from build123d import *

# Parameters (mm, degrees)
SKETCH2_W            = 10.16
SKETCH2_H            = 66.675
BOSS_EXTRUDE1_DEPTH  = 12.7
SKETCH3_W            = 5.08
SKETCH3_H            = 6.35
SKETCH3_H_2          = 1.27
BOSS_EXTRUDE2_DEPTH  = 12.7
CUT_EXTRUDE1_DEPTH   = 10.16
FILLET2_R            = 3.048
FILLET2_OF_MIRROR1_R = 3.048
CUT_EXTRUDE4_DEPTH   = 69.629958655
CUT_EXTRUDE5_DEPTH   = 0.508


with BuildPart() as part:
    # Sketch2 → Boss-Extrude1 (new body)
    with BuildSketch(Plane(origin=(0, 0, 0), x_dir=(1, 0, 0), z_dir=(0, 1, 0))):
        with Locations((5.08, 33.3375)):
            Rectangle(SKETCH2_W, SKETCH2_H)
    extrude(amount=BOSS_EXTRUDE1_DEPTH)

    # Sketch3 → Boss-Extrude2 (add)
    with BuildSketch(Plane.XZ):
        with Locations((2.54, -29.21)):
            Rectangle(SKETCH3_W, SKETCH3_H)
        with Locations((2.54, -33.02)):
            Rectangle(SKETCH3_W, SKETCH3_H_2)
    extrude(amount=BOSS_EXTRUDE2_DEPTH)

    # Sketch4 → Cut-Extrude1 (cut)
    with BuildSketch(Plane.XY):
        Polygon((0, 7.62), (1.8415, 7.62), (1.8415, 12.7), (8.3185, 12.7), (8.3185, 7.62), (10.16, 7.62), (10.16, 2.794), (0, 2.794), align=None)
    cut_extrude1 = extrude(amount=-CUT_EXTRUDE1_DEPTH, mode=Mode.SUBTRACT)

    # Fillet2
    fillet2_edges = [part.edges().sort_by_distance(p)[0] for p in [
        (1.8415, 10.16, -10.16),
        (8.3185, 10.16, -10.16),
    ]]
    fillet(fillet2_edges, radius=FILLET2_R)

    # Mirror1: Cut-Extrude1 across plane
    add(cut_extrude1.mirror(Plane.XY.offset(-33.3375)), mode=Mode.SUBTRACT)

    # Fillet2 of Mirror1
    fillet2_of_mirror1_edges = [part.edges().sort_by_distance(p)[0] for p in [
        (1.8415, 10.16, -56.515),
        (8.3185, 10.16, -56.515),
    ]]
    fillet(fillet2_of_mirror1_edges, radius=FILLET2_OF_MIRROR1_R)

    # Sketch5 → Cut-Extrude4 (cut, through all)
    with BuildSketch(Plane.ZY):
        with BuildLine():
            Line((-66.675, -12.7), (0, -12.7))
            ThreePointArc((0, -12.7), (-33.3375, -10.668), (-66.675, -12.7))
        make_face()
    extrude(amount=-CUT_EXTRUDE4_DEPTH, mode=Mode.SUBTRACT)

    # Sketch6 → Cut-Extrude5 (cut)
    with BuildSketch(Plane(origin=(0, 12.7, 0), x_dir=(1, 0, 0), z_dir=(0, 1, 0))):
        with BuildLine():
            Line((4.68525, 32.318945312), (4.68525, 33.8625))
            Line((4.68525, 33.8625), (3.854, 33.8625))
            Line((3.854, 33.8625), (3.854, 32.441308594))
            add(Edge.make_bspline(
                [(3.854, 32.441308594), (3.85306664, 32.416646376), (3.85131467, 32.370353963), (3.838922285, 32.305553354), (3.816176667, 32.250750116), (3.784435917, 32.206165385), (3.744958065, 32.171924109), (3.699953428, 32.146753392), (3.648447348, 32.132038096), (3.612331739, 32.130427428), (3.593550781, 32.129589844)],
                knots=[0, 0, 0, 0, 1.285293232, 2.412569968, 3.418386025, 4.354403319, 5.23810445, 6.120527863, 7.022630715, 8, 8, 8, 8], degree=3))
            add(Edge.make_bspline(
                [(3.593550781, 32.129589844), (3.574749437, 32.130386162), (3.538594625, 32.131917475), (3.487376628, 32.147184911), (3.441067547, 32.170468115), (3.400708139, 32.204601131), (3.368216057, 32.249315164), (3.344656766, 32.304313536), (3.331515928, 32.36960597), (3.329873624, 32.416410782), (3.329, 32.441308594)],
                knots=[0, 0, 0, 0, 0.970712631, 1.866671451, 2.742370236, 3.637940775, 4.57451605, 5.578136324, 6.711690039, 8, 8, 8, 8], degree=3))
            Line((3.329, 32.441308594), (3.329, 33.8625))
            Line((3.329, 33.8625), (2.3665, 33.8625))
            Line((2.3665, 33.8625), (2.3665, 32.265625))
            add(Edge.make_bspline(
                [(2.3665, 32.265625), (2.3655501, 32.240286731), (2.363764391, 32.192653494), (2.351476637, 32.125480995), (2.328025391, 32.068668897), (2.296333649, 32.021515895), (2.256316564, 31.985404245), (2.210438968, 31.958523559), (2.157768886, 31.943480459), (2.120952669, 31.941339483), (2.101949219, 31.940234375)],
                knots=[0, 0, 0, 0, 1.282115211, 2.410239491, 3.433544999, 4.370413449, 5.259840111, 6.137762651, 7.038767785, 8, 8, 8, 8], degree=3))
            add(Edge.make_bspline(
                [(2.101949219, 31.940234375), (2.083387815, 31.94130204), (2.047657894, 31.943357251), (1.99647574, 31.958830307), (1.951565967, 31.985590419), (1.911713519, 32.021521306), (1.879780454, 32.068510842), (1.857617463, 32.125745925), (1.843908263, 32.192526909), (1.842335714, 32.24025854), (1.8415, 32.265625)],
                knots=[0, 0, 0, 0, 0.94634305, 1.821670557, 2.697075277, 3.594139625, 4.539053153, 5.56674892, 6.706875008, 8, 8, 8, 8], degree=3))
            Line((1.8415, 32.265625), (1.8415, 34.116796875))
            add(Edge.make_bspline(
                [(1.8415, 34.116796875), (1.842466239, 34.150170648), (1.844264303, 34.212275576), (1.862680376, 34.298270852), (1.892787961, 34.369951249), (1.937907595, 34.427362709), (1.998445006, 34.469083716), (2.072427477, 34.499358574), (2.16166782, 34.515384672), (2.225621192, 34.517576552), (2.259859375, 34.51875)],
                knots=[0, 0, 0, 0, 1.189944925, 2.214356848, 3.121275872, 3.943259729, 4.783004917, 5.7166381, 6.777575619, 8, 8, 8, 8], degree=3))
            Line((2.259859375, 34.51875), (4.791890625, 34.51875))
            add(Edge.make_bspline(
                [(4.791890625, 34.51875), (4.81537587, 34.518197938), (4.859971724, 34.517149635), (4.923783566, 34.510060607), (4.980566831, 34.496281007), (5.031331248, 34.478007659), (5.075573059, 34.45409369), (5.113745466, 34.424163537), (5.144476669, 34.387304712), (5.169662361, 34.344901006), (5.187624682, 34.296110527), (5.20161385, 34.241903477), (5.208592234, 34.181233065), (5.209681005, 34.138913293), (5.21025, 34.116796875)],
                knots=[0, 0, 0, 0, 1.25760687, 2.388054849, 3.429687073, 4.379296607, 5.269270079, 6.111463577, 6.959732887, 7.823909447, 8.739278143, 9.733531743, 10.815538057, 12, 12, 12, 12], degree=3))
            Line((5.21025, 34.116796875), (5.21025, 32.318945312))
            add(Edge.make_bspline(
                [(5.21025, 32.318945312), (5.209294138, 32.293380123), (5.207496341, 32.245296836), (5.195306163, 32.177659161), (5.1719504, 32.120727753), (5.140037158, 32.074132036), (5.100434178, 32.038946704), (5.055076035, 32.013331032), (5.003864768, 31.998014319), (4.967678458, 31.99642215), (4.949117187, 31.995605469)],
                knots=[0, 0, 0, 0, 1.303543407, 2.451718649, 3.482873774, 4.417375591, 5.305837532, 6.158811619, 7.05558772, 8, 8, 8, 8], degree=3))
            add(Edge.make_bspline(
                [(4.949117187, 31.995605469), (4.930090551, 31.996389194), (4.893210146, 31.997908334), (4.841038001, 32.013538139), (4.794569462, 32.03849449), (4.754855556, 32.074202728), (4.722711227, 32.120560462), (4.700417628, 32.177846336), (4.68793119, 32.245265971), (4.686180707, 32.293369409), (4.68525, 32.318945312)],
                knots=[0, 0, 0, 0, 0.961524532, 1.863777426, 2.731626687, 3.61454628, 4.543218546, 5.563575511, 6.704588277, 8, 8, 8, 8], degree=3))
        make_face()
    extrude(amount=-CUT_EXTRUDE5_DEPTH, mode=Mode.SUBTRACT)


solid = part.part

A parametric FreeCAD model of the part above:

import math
import FreeCAD as App
import Part
import Sketcher
Q = App.Units.Quantity


def edges_at(feature, points):
    """Names of the edges that pass closest to the given points."""
    edges = feature.Shape.Edges
    near = lambda p: min(range(len(edges)), key=lambda i: edges[i].distToShape(Part.Vertex(*p))[0])
    return sorted({f"Edge{near(p) + 1}" for p in points})


def add_polygon(sketch, points):
    """Adds a closed chain of lines whose ends are joined by coincident constraints."""
    first, n = sketch.GeometryCount, len(points)
    for a, b in zip(points, points[1:] + points[:1]):
        sketch.addGeometry(Part.LineSegment(App.Vector(*a, 0), App.Vector(*b, 0)), False)
    for i in range(n):
        sketch.addConstraint(Sketcher.Constraint("Coincident", first + i, 2, first + (i + 1) % n, 1))

doc = App.newDocument("Part")
params = doc.addObject("Spreadsheet::Sheet", "Params")
for row, (alias, value) in enumerate([
    ("sketch1_width", "0.4 in"),
    ("sketch1_height", "2.625 in"),
    ("pad1_length", "0.5 in"),
    ("sketch2_width", "0.2 in"),
    ("sketch2_height", "0.3 in"),
    ("pad2_length", "0.5 in"),
    ("sketch3_width", "0.4 in"),
    ("sketch3_height", "0.2 in"),
    ("sketch3_height2", "0.19 in"),
    ("sketch3_width2", "0.255 in"),
    ("pocket1_length", "0.4 in"),
    ("fillet_radius", "0.12 in"),
    ("fillet2_radius", "0.12 in"),
    ("sketch4_height", "2.625 in"),
    ("pocket3_length", "0.02 in"),
], start=1):
    params.set(f"A{row}", alias)
    params.set(f"B{row}", "=" + value)
    params.setAlias(f"B{row}", alias)

body = doc.addObject("PartDesign::Body", "Body")

# Sketch on XZ plane
sketch1 = doc.addObject("Sketcher::SketchObject", "Sketch")
body.addObject(sketch1)
sketch1.AttachmentSupport = (doc.XZ_Plane, [""])
sketch1.MapMode = "FlatFace"
add_polygon(sketch1, [(0, -67), (0, 0), (10, 0), (10, -67)])  # lines 0-3
sketch1.addConstraint(Sketcher.Constraint("Vertical", 0))
sketch1.addConstraint(Sketcher.Constraint("Horizontal", 1))
sketch1.addConstraint(Sketcher.Constraint("Vertical", 2))
sketch1.addConstraint(Sketcher.Constraint("Horizontal", 3))
sketch1.addConstraint(Sketcher.Constraint("Coincident", 0, 2, -1, 1))
sketch1.addConstraint(Sketcher.Constraint("DistanceX", 1, 1, 1, 2, Q("0.4 in")))
sketch1.addConstraint(Sketcher.Constraint("DistanceY", 0, 1, 0, 2, Q("2.625 in")))
sketch1.setExpression("Constraints[9]", "Params.sketch1_width")
sketch1.setExpression("Constraints[10]", "Params.sketch1_height")
pad1 = doc.addObject("PartDesign::Pad", "Pad")
body.addObject(pad1)
pad1.Profile = sketch1
pad1.setExpression("Length", "Params.pad1_length")
pad1.Reversed = True

# Sketch on XZ plane
sketch2 = doc.addObject("Sketcher::SketchObject", "Sketch001")
body.addObject(sketch2)
sketch2.AttachmentSupport = (doc.XZ_Plane, [""])
sketch2.MapMode = "FlatFace"
add_polygon(sketch2, [(0, -26), (0, -34), (5, -34), (5, -26)])  # lines 0-3
sketch2.addConstraint(Sketcher.Constraint("Vertical", 0))
sketch2.addConstraint(Sketcher.Constraint("Horizontal", 1))
sketch2.addConstraint(Sketcher.Constraint("Vertical", 2))
sketch2.addConstraint(Sketcher.Constraint("Horizontal", 3))
sketch2.addConstraint(Sketcher.Constraint("PointOnObject", 0, 2, -2))
sketch2.addConstraint(Sketcher.Constraint("DistanceX", 1, 1, 1, 2, Q("0.2 in")))
sketch2.addConstraint(Sketcher.Constraint("DistanceY", 0, 2, 0, 1, Q("0.3 in")))
sketch2.addConstraint(Sketcher.Constraint("DistanceY", 0, 2, -1, 1, Q("1.325 in")))
sketch2.setExpression("Constraints[9]", "Params.sketch2_width")
sketch2.setExpression("Constraints[10]", "Params.sketch2_height")
pad2 = doc.addObject("PartDesign::Pad", "Pad001")
body.addObject(pad2)
pad2.Profile = sketch2
pad2.setExpression("Length", "Params.pad2_length")

# Sketch on XY plane
sketch3 = doc.addObject("Sketcher::SketchObject", "Sketch002")
body.addObject(sketch3)
sketch3.AttachmentSupport = (doc.XY_Plane, [""])
sketch3.MapMode = "FlatFace"
add_polygon(sketch3, [(1.8, 7.6), (0, 7.6), (0, 2.8), (10.2, 2.8), (10.2, 7.6), (8.3, 7.6), (8.3, 12.7), (1.8, 12.7)])  # lines 0-7
sketch3.addConstraint(Sketcher.Constraint("Horizontal", 0))
sketch3.addConstraint(Sketcher.Constraint("Vertical", 1))
sketch3.addConstraint(Sketcher.Constraint("Horizontal", 2))
sketch3.addConstraint(Sketcher.Constraint("Vertical", 3))
sketch3.addConstraint(Sketcher.Constraint("Horizontal", 4))
sketch3.addConstraint(Sketcher.Constraint("Vertical", 5))
sketch3.addConstraint(Sketcher.Constraint("Horizontal", 6))
sketch3.addConstraint(Sketcher.Constraint("Vertical", 7))
sketch3.addConstraint(Sketcher.Constraint("PointOnObject", 0, 2, -2))
sketch3.addConstraint(Sketcher.Constraint("Horizontal", 0, 2, 3, 2))
sketch3.addConstraint(Sketcher.Constraint("Equal", 0, 4))
sketch3.addConstraint(Sketcher.Constraint("DistanceX", 2, 1, 2, 2, Q("0.4 in")))
sketch3.addConstraint(Sketcher.Constraint("DistanceY", 5, 1, 5, 2, Q("0.2 in")))
sketch3.addConstraint(Sketcher.Constraint("DistanceY", 1, 2, 1, 1, Q("0.19 in")))
sketch3.addConstraint(Sketcher.Constraint("DistanceY", -1, 1, 0, 2, Q("0.3 in")))
sketch3.addConstraint(Sketcher.Constraint("DistanceX", 6, 2, 6, 1, Q("0.255 in")))
sketch3.setExpression("Constraints[19]", "Params.sketch3_width")
sketch3.setExpression("Constraints[20]", "Params.sketch3_height")
sketch3.setExpression("Constraints[21]", "Params.sketch3_height2")
sketch3.setExpression("Constraints[23]", "Params.sketch3_width2")
pocket1 = doc.addObject("PartDesign::Pocket", "Pocket")
body.addObject(pocket1)
pocket1.Profile = sketch3
pocket1.setExpression("Length", "Params.pocket1_length")
doc.recompute()

fillet = doc.addObject("PartDesign::Fillet", "Fillet")
body.addObject(fillet)
fillet.Base = (pocket1, edges_at(pocket1, [(1.841, 10.16, -10.16), (8.319, 10.16, -10.16)]))
fillet.setExpression("Radius", "Params.fillet_radius")
doc.recompute()

datumplane = doc.addObject("PartDesign::Plane", "DatumPlane")
body.addObject(datumplane)
datumplane.AttachmentSupport = (doc.XY_Plane, [""])
datumplane.MapMode = "FlatFace"
datumplane.AttachmentOffset = App.Placement(App.Vector(0, 0, -1.3125 * 25.4), App.Rotation())
mirrored = doc.addObject("PartDesign::Mirrored", "Mirrored")
body.addObject(mirrored)
mirrored.Originals = [pocket1]
mirrored.MirrorPlane = (datumplane, [""])
body.Tip = mirrored
doc.recompute()

fillet2 = doc.addObject("PartDesign::Fillet", "Fillet001")
body.addObject(fillet2)
fillet2.Base = (mirrored, edges_at(mirrored, [(1.841, 10.16, -56.515), (8.319, 10.16, -56.515)]))
fillet2.setExpression("Radius", "Params.fillet2_radius")

# Sketch on YZ plane
sketch4 = doc.addObject("Sketcher::SketchObject", "Sketch003")
body.addObject(sketch4)
sketch4.AttachmentSupport = (doc.YZ_Plane, [""])
sketch4.MapMode = "FlatFace"
sketch4.addGeometry(Part.LineSegment(App.Vector(-13, -67, 0), App.Vector(-13, 0, 0)), False)
sketch4.addGeometry(Part.ArcOfCircle(Part.Circle(App.Vector(-285, -33, 0), App.Vector(0, 0, 1), 274), math.radians(-6.98), math.radians(6.98)), False)
sketch4.addConstraint(Sketcher.Constraint("Coincident", 0, 1, 1, 1))
sketch4.addConstraint(Sketcher.Constraint("Coincident", 1, 2, 0, 2))
sketch4.addConstraint(Sketcher.Constraint("Vertical", 0))
sketch4.addConstraint(Sketcher.Constraint("PointOnObject", 1, 2, -1))
sketch4.addConstraint(Sketcher.Constraint("DistanceX", 0, 1, -1, 1, Q("0.5 in")))
sketch4.addConstraint(Sketcher.Constraint("DistanceY", 0, 1, 0, 2, Q("2.625 in")))
sketch4.addConstraint(Sketcher.Constraint("Radius", 1, Q("274.48768 mm")))
sketch4.setExpression("Constraints[5]", "Params.sketch4_height")
pocket2 = doc.addObject("PartDesign::Pocket", "Pocket001")
body.addObject(pocket2)
pocket2.Profile = sketch4
pocket2.Type = "ThroughAll"
pocket2.Reversed = True

# Sketch on XZ plane
sketch5 = doc.addObject("Sketcher::SketchObject", "Sketch004")
body.addObject(sketch5)
sketch5.AttachmentSupport = (doc.XZ_Plane, [""])
sketch5.MapMode = "FlatFace"
sketch5.AttachmentOffset = App.Placement(App.Vector(0, 0, -0.5 * 25.4), App.Rotation())
sketch5.addGeometry(Part.LineSegment(App.Vector(4.68525, -33.8625, 0), App.Vector(4.68525, -32.318945, 0)), False)
sketch5.addGeometry(Part.BSplineCurve([App.Vector(4.949117, -31.995605, 0), App.Vector(4.930091, -31.996389, 0), App.Vector(4.89321, -31.997908, 0), App.Vector(4.841038, -32.013538, 0), App.Vector(4.794569, -32.038494, 0), App.Vector(4.754856, -32.074203, 0), App.Vector(4.722711, -32.12056, 0), App.Vector(4.700418, -32.177846, 0), App.Vector(4.687931, -32.245266, 0), App.Vector(4.686181, -32.293369, 0), App.Vector(4.68525, -32.318945, 0)], [4, 1, 1, 1, 1, 1, 1, 1, 4], [0, 0.961524532, 1.863777426, 2.731626687, 3.61454628, 4.543218546, 5.563575511, 6.704588277, 8], False, 3, [1, 1, 1, 1, 1, 1, 1, 1, 1, 1, 1], False), False)
sketch5.addGeometry(Part.BSplineCurve([App.Vector(5.21025, -32.318945, 0), App.Vector(5.209294, -32.29338, 0), App.Vector(5.207496, -32.245297, 0), App.Vector(5.195306, -32.177659, 0), App.Vector(5.17195, -32.120728, 0), App.Vector(5.140037, -32.074132, 0), App.Vector(5.100434, -32.038947, 0), App.Vector(5.055076, -32.013331, 0), App.Vector(5.003865, -31.998014, 0), App.Vector(4.967678, -31.996422, 0), App.Vector(4.949117, -31.995605, 0)], [4, 1, 1, 1, 1, 1, 1, 1, 4], [0, 1.303543407, 2.451718649, 3.482873774, 4.417375591, 5.305837532, 6.158811619, 7.05558772, 8], False, 3, [1, 1, 1, 1, 1, 1, 1, 1, 1, 1, 1], False), False)
sketch5.addGeometry(Part.LineSegment(App.Vector(5.21025, -32.318945, 0), App.Vector(5.21025, -34.116797, 0)), False)
sketch5.addGeometry(Part.BSplineCurve([App.Vector(4.791891, -34.51875, 0), App.Vector(4.815376, -34.518198, 0), App.Vector(4.859972, -34.51715, 0), App.Vector(4.923784, -34.510061, 0), App.Vector(4.980567, -34.496281, 0), App.Vector(5.031331, -34.478008, 0), App.Vector(5.075573, -34.454094, 0), App.Vector(5.113745, -34.424164, 0), App.Vector(5.144477, -34.387305, 0), App.Vector(5.169662, -34.344901, 0), App.Vector(5.187625, -34.296111, 0), App.Vector(5.201614, -34.241903, 0), App.Vector(5.208592, -34.181233, 0), App.Vector(5.209681, -34.138913, 0), App.Vector(5.21025, -34.116797, 0)], [4, 1, 1, 1, 1, 1, 1, 1, 1, 1, 1, 1, 4], [0, 1.25760687, 2.388054849, 3.429687073, 4.379296607, 5.269270079, 6.111463577, 6.959732887, 7.823909447, 8.739278143, 9.733531743, 10.815538057, 12], False, 3, [1, 1, 1, 1, 1, 1, 1, 1, 1, 1, 1, 1, 1, 1, 1], False), False)
sketch5.addGeometry(Part.LineSegment(App.Vector(4.791891, -34.51875, 0), App.Vector(2.259859, -34.51875, 0)), False)
sketch5.addGeometry(Part.BSplineCurve([App.Vector(1.8415, -34.116797, 0), App.Vector(1.842466, -34.150171, 0), App.Vector(1.844264, -34.212276, 0), App.Vector(1.86268, -34.298271, 0), App.Vector(1.892788, -34.369951, 0), App.Vector(1.937908, -34.427363, 0), App.Vector(1.998445, -34.469084, 0), App.Vector(2.072427, -34.499359, 0), App.Vector(2.161668, -34.515385, 0), App.Vector(2.225621, -34.517577, 0), App.Vector(2.259859, -34.51875, 0)], [4, 1, 1, 1, 1, 1, 1, 1, 4], [0, 1.189944925, 2.214356848, 3.121275872, 3.943259729, 4.783004917, 5.7166381, 6.777575619, 8], False, 3, [1, 1, 1, 1, 1, 1, 1, 1, 1, 1, 1], False), False)
sketch5.addGeometry(Part.LineSegment(App.Vector(1.8415, -34.116797, 0), App.Vector(1.8415, -32.265625, 0)), False)
sketch5.addGeometry(Part.BSplineCurve([App.Vector(2.101949, -31.940234, 0), App.Vector(2.083388, -31.941302, 0), App.Vector(2.047658, -31.943357, 0), App.Vector(1.996476, -31.95883, 0), App.Vector(1.951566, -31.98559, 0), App.Vector(1.911714, -32.021521, 0), App.Vector(1.87978, -32.068511, 0), App.Vector(1.857617, -32.125746, 0), App.Vector(1.843908, -32.192527, 0), App.Vector(1.842336, -32.240259, 0), App.Vector(1.8415, -32.265625, 0)], [4, 1, 1, 1, 1, 1, 1, 1, 4], [0, 0.94634305, 1.821670557, 2.697075277, 3.594139625, 4.539053153, 5.56674892, 6.706875008, 8], False, 3, [1, 1, 1, 1, 1, 1, 1, 1, 1, 1, 1], False), False)
sketch5.addGeometry(Part.BSplineCurve([App.Vector(2.3665, -32.265625, 0), App.Vector(2.36555, -32.240287, 0), App.Vector(2.363764, -32.192653, 0), App.Vector(2.351477, -32.125481, 0), App.Vector(2.328025, -32.068669, 0), App.Vector(2.296334, -32.021516, 0), App.Vector(2.256317, -31.985404, 0), App.Vector(2.210439, -31.958524, 0), App.Vector(2.157769, -31.94348, 0), App.Vector(2.120953, -31.941339, 0), App.Vector(2.101949, -31.940234, 0)], [4, 1, 1, 1, 1, 1, 1, 1, 4], [0, 1.282115211, 2.410239491, 3.433544999, 4.370413449, 5.259840111, 6.137762651, 7.038767785, 8], False, 3, [1, 1, 1, 1, 1, 1, 1, 1, 1, 1, 1], False), False)
sketch5.addGeometry(Part.LineSegment(App.Vector(2.3665, -32.265625, 0), App.Vector(2.3665, -33.8625, 0)), False)
sketch5.addGeometry(Part.LineSegment(App.Vector(2.3665, -33.8625, 0), App.Vector(3.329, -33.8625, 0)), False)
sketch5.addGeometry(Part.LineSegment(App.Vector(3.329, -33.8625, 0), App.Vector(3.329, -32.441309, 0)), False)
sketch5.addGeometry(Part.BSplineCurve([App.Vector(3.593551, -32.12959, 0), App.Vector(3.574749, -32.130386, 0), App.Vector(3.538595, -32.131917, 0), App.Vector(3.487377, -32.147185, 0), App.Vector(3.441068, -32.170468, 0), App.Vector(3.400708, -32.204601, 0), App.Vector(3.368216, -32.249315, 0), App.Vector(3.344657, -32.304314, 0), App.Vector(3.331516, -32.369606, 0), App.Vector(3.329874, -32.416411, 0), App.Vector(3.329, -32.441309, 0)], [4, 1, 1, 1, 1, 1, 1, 1, 4], [0, 0.970712631, 1.866671451, 2.742370236, 3.637940775, 4.57451605, 5.578136324, 6.711690039, 8], False, 3, [1, 1, 1, 1, 1, 1, 1, 1, 1, 1, 1], False), False)
sketch5.addGeometry(Part.BSplineCurve([App.Vector(3.854, -32.441309, 0), App.Vector(3.853067, -32.416646, 0), App.Vector(3.851315, -32.370354, 0), App.Vector(3.838922, -32.305553, 0), App.Vector(3.816177, -32.25075, 0), App.Vector(3.784436, -32.206165, 0), App.Vector(3.744958, -32.171924, 0), App.Vector(3.699953, -32.146753, 0), App.Vector(3.648447, -32.132038, 0), App.Vector(3.612332, -32.130427, 0), App.Vector(3.593551, -32.12959, 0)], [4, 1, 1, 1, 1, 1, 1, 1, 4], [0, 1.285293232, 2.412569968, 3.418386025, 4.354403319, 5.23810445, 6.120527863, 7.022630715, 8], False, 3, [1, 1, 1, 1, 1, 1, 1, 1, 1, 1, 1], False), False)
sketch5.addGeometry(Part.LineSegment(App.Vector(3.854, -32.441309, 0), App.Vector(3.854, -33.8625, 0)), False)
sketch5.addGeometry(Part.LineSegment(App.Vector(3.854, -33.8625, 0), App.Vector(4.68525, -33.8625, 0)), False)
sketch5.addConstraint(Sketcher.Constraint("Block", 1))
sketch5.addConstraint(Sketcher.Constraint("Block", 2))
sketch5.addConstraint(Sketcher.Constraint("Block", 4))
sketch5.addConstraint(Sketcher.Constraint("Block", 6))
sketch5.addConstraint(Sketcher.Constraint("Block", 8))
sketch5.addConstraint(Sketcher.Constraint("Block", 9))
sketch5.addConstraint(Sketcher.Constraint("Block", 13))
sketch5.addConstraint(Sketcher.Constraint("Block", 14))
sketch5.addConstraint(Sketcher.Constraint("Coincident", 0, 2, 1, 2))
sketch5.addConstraint(Sketcher.Constraint("Coincident", 2, 1, 3, 1))
sketch5.addConstraint(Sketcher.Constraint("Coincident", 3, 2, 4, 2))
sketch5.addConstraint(Sketcher.Constraint("Coincident", 4, 1, 5, 1))
sketch5.addConstraint(Sketcher.Constraint("Coincident", 5, 2, 6, 2))
sketch5.addConstraint(Sketcher.Constraint("Coincident", 6, 1, 7, 1))
sketch5.addConstraint(Sketcher.Constraint("Coincident", 7, 2, 8, 2))
sketch5.addConstraint(Sketcher.Constraint("Coincident", 9, 1, 10, 1))
sketch5.addConstraint(Sketcher.Constraint("Coincident", 10, 2, 11, 1))
sketch5.addConstraint(Sketcher.Constraint("Coincident", 11, 2, 12, 1))
sketch5.addConstraint(Sketcher.Constraint("Coincident", 12, 2, 13, 2))
sketch5.addConstraint(Sketcher.Constraint("Coincident", 14, 1, 15, 1))
sketch5.addConstraint(Sketcher.Constraint("Coincident", 15, 2, 16, 1))
sketch5.addConstraint(Sketcher.Constraint("Coincident", 16, 2, 0, 1))
sketch5.addConstraint(Sketcher.Constraint("Vertical", 0))
sketch5.addConstraint(Sketcher.Constraint("Vertical", 10))
sketch5.addConstraint(Sketcher.Constraint("Horizontal", 11))
sketch5.addConstraint(Sketcher.Constraint("Vertical", 12))
sketch5.addConstraint(Sketcher.Constraint("Vertical", 15))
sketch5.addConstraint(Sketcher.Constraint("Horizontal", 16))
sketch5.addConstraint(Sketcher.Constraint("Horizontal", 11, 2, 15, 2))
sketch5.addConstraint(Sketcher.Constraint("DistanceY", 12, 1, 12, 2, Q("1.421191 mm")))
pocket3 = doc.addObject("PartDesign::Pocket", "Pocket002")
body.addObject(pocket3)
pocket3.Profile = sketch5
pocket3.setExpression("Length", "Params.pocket3_length")
pocket3.Reversed = True

doc.recompute()
